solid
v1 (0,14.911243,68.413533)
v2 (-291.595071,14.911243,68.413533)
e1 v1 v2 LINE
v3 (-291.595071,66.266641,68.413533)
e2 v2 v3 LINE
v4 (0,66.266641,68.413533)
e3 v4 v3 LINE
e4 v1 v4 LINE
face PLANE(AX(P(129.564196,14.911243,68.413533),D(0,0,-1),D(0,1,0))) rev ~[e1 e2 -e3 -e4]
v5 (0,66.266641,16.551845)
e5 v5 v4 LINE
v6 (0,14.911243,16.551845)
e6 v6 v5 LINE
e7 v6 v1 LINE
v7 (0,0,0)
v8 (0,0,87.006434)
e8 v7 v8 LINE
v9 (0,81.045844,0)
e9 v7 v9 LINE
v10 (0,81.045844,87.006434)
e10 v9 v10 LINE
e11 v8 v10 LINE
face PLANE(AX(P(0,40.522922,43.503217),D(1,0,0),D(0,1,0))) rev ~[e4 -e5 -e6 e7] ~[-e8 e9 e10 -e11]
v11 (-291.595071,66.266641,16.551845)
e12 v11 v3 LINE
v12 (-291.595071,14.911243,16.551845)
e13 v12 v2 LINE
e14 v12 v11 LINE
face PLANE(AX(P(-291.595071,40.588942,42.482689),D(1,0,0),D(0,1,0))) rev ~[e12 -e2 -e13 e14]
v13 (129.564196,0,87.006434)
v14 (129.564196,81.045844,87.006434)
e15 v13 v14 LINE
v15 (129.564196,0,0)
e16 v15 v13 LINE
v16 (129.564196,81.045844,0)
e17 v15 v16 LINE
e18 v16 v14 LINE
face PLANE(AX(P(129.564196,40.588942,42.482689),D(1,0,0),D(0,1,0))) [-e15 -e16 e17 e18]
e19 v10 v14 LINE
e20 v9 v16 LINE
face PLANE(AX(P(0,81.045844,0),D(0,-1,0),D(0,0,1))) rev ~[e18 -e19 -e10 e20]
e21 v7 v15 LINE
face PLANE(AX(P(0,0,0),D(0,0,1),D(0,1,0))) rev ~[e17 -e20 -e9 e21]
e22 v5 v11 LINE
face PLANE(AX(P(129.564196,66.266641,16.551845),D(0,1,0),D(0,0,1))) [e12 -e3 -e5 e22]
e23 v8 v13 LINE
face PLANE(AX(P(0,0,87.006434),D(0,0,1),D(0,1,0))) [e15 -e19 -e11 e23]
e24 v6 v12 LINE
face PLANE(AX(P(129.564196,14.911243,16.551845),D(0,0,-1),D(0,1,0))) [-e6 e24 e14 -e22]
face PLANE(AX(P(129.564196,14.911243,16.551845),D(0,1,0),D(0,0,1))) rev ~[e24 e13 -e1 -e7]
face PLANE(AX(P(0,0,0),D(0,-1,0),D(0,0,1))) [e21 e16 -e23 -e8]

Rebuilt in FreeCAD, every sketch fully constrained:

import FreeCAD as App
import Part
import Sketcher

V = App.Vector


def add_polygon(sketch, points):
    """Adds a closed chain of lines whose ends are joined by coincident constraints."""
    first, n = sketch.GeometryCount, len(points)
    for a, b in zip(points, points[1:] + points[:1]):
        sketch.addGeometry(Part.LineSegment(App.Vector(*a, 0), App.Vector(*b, 0)), False)
    for i in range(n):
        sketch.addConstraint(Sketcher.Constraint("Coincident", first + i, 2, first + (i + 1) % n, 1))

doc = App.newDocument("Part")
body = doc.addObject("PartDesign::Body", "Body")

sketch1 = body.newObject("Sketcher::SketchObject", "Sketch")
sketch1.AttachmentSupport = (doc.getObject("YZ_Plane"), [""])
sketch1.MapMode = "FlatFace"
add_polygon(sketch1, [(0, 87), (0, 0), (81, 0), (81, 87)])
sketch1.addConstraint([
    Sketcher.Constraint("Vertical", 0),
    Sketcher.Constraint("Horizontal", 1),
    Sketcher.Constraint("Vertical", 2),
    Sketcher.Constraint("Horizontal", 3),
    Sketcher.Constraint("Coincident", 0, 2, -1, 1),
    Sketcher.Constraint("DistanceX", 1, 1, 1, 2, 81.045844),
    Sketcher.Constraint("DistanceY", 0, 2, 0, 1, 87.006435),
])
pad1 = body.newObject("PartDesign::Pad", "Pad")
pad1.Profile = sketch1
pad1.Length = 129.564196

sketch2 = body.newObject("Sketcher::SketchObject", "Sketch001")
sketch2.AttachmentSupport = (doc.getObject("YZ_Plane"), [""])
sketch2.MapMode = "FlatFace"
sketch2.AttachmentOffset = App.Placement(V(0, 0, 129.564196), App.Rotation())
add_polygon(sketch2, [(15, 68), (15, 17), (66, 17), (66, 68)])
sketch2.addConstraint([
    Sketcher.Constraint("Vertical", 0),
    Sketcher.Constraint("Horizontal", 1),
    Sketcher.Constraint("Vertical", 2),
    Sketcher.Constraint("Horizontal", 3),
    Sketcher.Constraint("DistanceX", 1, 1, 1, 2, 51.355398),
    Sketcher.Constraint("DistanceY", 0, 2, 0, 1, 51.861688),
    Sketcher.Constraint("DistanceX", -1, 1, 1, 2, 66.266641),
    Sketcher.Constraint("DistanceY", -1, 1, 0, 2, 16.551845),
])
pad2 = body.newObject("PartDesign::Pad", "Pad001")
pad2.Profile = sketch2
pad2.Length = 421.159267
pad2.Reversed = True

doc.recompute()
